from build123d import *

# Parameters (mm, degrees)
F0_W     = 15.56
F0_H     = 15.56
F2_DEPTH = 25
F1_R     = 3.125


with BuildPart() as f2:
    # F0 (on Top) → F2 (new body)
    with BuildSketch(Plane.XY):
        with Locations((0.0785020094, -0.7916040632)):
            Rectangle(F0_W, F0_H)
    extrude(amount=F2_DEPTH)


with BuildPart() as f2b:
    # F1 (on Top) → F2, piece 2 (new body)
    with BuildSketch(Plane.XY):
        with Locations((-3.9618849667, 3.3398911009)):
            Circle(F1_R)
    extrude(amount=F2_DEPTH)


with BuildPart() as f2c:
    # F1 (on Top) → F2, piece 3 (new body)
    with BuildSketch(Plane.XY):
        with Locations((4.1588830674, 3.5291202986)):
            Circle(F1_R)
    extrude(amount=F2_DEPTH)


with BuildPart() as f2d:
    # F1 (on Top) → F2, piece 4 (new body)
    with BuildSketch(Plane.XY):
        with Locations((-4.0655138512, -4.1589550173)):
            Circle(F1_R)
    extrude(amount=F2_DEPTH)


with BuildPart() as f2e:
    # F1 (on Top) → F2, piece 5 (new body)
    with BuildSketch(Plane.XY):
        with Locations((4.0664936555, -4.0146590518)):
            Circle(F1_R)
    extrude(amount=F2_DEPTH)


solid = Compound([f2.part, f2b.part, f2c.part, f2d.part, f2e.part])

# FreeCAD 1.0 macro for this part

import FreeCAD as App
import Part
import Sketcher

V = App.Vector
Q = App.Units.Quantity

doc = App.newDocument("Part")
body = doc.addObject("PartDesign::Body", "Body")

# Sketch on XY plane
sketch1 = doc.addObject("Sketcher::SketchObject", "Sketch")
body.addObject(sketch1)
sketch1.AttachmentSupport = (doc.XY_Plane, [""])
sketch1.MapMode = "FlatFace"
sketch1.addGeometry([
    Part.LineSegment(V(-8, 7, 0), V(-8, -9, 0)),
    Part.LineSegment(V(-8, -9, 0), V(8, -9, 0)),
    Part.LineSegment(V(8, -9, 0), V(8, 7, 0)),
    Part.LineSegment(V(8, 7, 0), V(-8, 7, 0)),
], False)
sketch1.addConstraint([
    Sketcher.Constraint("Coincident", 0, 2, 1, 1),
    Sketcher.Constraint("Coincident", 1, 2, 2, 1),
    Sketcher.Constraint("Coincident", 2, 2, 3, 1),
    Sketcher.Constraint("Coincident", 3, 2, 0, 1),
    Sketcher.Constraint("Vertical", 0),
    Sketcher.Constraint("Horizontal", 1),
    Sketcher.Constraint("Vertical", 2),
    Sketcher.Constraint("Horizontal", 3),
    Sketcher.Constraint("Equal", 3, 0),
    Sketcher.Constraint("DistanceX", 1, 1, 1, 2, Q("15.56 mm")),
    Sketcher.Constraint("DistanceX", 0, 2, -1, 1, Q("7.701498 mm")),
    Sketcher.Constraint("DistanceY", 0, 2, -1, 1, Q("8.571604 mm")),
])
pad1 = doc.addObject("PartDesign::Pad", "Pad")
body.addObject(pad1)
pad1.Profile = sketch1
pad1.Length = 25
body2 = doc.addObject("PartDesign::Body", "Body001")

# Sketch on XY plane
sketch2 = doc.addObject("Sketcher::SketchObject", "Sketch001")
body2.addObject(sketch2)
sketch2.AttachmentSupport = (doc.getObject("XY_Plane001"), [""])
sketch2.MapMode = "FlatFace"
sketch2.addGeometry(Part.Circle(V(-4, 3.3, 0), V(0, 0, 1), 3.1), False)
sketch2.addConstraint([
    Sketcher.Constraint("Diameter", 0, Q("6.25 mm")),
    Sketcher.Constraint("DistanceY", -1, 1, 0, 3, Q("3.339891 mm")),
    Sketcher.Constraint("DistanceX", 0, 3, -1, 1, Q("3.961885 mm")),
])
pad2 = doc.addObject("PartDesign::Pad", "Pad001")
body2.addObject(pad2)
pad2.Profile = sketch2
pad2.Length = 25
body3 = doc.addObject("PartDesign::Body", "Body002")

# Sketch on XY plane
sketch3 = doc.addObject("Sketcher::SketchObject", "Sketch002")
body3.addObject(sketch3)
sketch3.AttachmentSupport = (doc.getObject("XY_Plane002"), [""])
sketch3.MapMode = "FlatFace"
sketch3.addGeometry(Part.Circle(V(4.2, 3.5, 0), V(0, 0, 1), 3.1), False)
sketch3.addConstraint([
    Sketcher.Constraint("Diameter", 0, Q("6.25 mm")),
    Sketcher.Constraint("DistanceY", -1, 1, 0, 3, Q("3.52912 mm")),
    Sketcher.Constraint("DistanceX", -1, 1, 0, 3, Q("4.158883 mm")),
])
pad3 = doc.addObject("PartDesign::Pad", "Pad002")
body3.addObject(pad3)
pad3.Profile = sketch3
pad3.Length = 25
body4 = doc.addObject("PartDesign::Body", "Body003")

# Sketch on XY plane
sketch4 = doc.addObject("Sketcher::SketchObject", "Sketch003")
body4.addObject(sketch4)
sketch4.AttachmentSupport = (doc.getObject("XY_Plane003"), [""])
sketch4.MapMode = "FlatFace"
sketch4.addGeometry(Part.Circle(V(-4.1, -4.2, 0), V(0, 0, 1), 3.1), False)
sketch4.addConstraint([
    Sketcher.Constraint("Diameter", 0, Q("6.25 mm")),
    Sketcher.Constraint("DistanceX", 0, 3, -1, 1, Q("4.065514 mm")),
    Sketcher.Constraint("DistanceY", 0, 3, -1, 1, Q("4.158955 mm")),
])
pad4 = doc.addObject("PartDesign::Pad", "Pad003")
body4.addObject(pad4)
pad4.Profile = sketch4
pad4.Length = 25
body5 = doc.addObject("PartDesign::Body", "Body004")

# Sketch on XY plane
sketch5 = doc.addObject("Sketcher::SketchObject", "Sketch004")
body5.addObject(sketch5)
sketch5.AttachmentSupport = (doc.getObject("XY_Plane004"), [""])
sketch5.MapMode = "FlatFace"
sketch5.addGeometry(Part.Circle(V(4.1, -4, 0), V(0, 0, 1), 3.1), False)
sketch5.addConstraint([
    Sketcher.Constraint("Diameter", 0, Q("6.25 mm")),
    Sketcher.Constraint("DistanceY", 0, 3, -1, 1, Q("4.014659 mm")),
    Sketcher.Constraint("DistanceX", -1, 1, 0, 3, Q("4.066494 mm")),
])
pad5 = doc.addObject("PartDesign::Pad", "Pad004")
body5.addObject(pad5)
pad5.Profile = sketch5
pad5.Length = 25

doc.recompute()
